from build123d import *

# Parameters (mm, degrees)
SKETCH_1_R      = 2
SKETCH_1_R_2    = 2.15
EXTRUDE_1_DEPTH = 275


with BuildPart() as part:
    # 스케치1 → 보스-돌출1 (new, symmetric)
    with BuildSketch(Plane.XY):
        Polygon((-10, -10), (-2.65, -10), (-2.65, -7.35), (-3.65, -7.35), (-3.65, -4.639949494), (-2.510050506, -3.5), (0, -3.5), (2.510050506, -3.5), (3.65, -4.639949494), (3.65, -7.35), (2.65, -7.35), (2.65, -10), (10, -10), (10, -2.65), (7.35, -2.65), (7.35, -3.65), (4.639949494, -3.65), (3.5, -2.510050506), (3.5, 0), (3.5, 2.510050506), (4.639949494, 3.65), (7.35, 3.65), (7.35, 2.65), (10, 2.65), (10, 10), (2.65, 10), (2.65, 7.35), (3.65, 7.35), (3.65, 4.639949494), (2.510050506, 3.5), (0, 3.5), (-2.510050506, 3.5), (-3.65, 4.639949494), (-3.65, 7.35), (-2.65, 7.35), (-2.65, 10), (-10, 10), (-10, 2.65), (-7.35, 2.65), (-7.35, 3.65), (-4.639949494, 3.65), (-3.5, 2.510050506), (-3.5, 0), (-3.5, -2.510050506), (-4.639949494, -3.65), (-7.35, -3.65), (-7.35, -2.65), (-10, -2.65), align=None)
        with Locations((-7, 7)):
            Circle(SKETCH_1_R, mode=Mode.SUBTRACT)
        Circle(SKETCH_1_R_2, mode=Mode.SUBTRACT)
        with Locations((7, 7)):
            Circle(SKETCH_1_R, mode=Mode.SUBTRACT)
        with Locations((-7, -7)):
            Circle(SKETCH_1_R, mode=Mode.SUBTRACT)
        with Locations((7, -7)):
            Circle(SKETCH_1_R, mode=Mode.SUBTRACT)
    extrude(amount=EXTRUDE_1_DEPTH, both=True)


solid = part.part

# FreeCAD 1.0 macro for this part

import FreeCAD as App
import Part
import Sketcher

V = App.Vector
Q = App.Units.Quantity

doc = App.newDocument("Part")
params = doc.addObject("Spreadsheet::Sheet", "Params")
for row, (alias, value) in enumerate([
    ("sketch1_diameter", "4 mm"),
    ("sketch1_diameter2", "4.3 mm"),
    ("sketch1_width", "1 mm"),
    ("sketch1_width2", "7.35 mm"),
    ("sketch1_width3", "2.65 mm"),
    ("pad1_length", "550 mm"),
], start=1):
    params.set(f"A{row}", alias)
    params.set(f"B{row}", "=" + value)
    params.setAlias(f"B{row}", alias)

body = doc.addObject("PartDesign::Body", "Body")

sketch1 = body.newObject("Sketcher::SketchObject", "Sketch")
sketch1.AttachmentSupport = (doc.getObject("XY_Plane"), [""])
sketch1.MapMode = "FlatFace"
sketch1.addGeometry([
    Part.LineSegment(V(-10, -10, 0), V(-2.65, -10, 0)),
    Part.LineSegment(V(-2.65, -10, 0), V(-2.65, -7.35, 0)),
    Part.LineSegment(V(-2.65, -7.35, 0), V(-3.65, -7.35, 0)),
    Part.LineSegment(V(-3.65, -7.35, 0), V(-3.65, -4.639949, 0)),
    Part.LineSegment(V(-3.65, -4.639949, 0), V(-2.510051, -3.5, 0)),
    Part.LineSegment(V(-2.510051, -3.5, 0), V(2.510051, -3.5, 0)),
    Part.LineSegment(V(2.510051, -3.5, 0), V(3.65, -4.639949, 0)),
    Part.LineSegment(V(3.65, -4.639949, 0), V(3.65, -7.35, 0)),
    Part.LineSegment(V(3.65, -7.35, 0), V(2.65, -7.35, 0)),
    Part.LineSegment(V(2.65, -7.35, 0), V(2.65, -10, 0)),
    Part.LineSegment(V(2.65, -10, 0), V(10, -10, 0)),
    Part.LineSegment(V(10, -10, 0), V(10, -2.65, 0)),
    Part.LineSegment(V(10, -2.65, 0), V(7.35, -2.65, 0)),
    Part.LineSegment(V(7.35, -2.65, 0), V(7.35, -3.65, 0)),
    Part.LineSegment(V(7.35, -3.65, 0), V(4.639949, -3.65, 0)),
    Part.LineSegment(V(4.639949, -3.65, 0), V(3.5, -2.510051, 0)),
    Part.LineSegment(V(3.5, -2.510051, 0), V(3.5, 2.510051, 0)),
    Part.LineSegment(V(3.5, 2.510051, 0), V(4.639949, 3.65, 0)),
    Part.LineSegment(V(4.639949, 3.65, 0), V(7.35, 3.65, 0)),
    Part.LineSegment(V(7.35, 3.65, 0), V(7.35, 2.65, 0)),
    Part.LineSegment(V(7.35, 2.65, 0), V(10, 2.65, 0)),
    Part.LineSegment(V(10, 2.65, 0), V(10, 10, 0)),
    Part.LineSegment(V(10, 10, 0), V(2.65, 10, 0)),
    Part.LineSegment(V(2.65, 10, 0), V(2.65, 7.35, 0)),
    Part.LineSegment(V(2.65, 7.35, 0), V(3.65, 7.35, 0)),
    Part.LineSegment(V(3.65, 7.35, 0), V(3.65, 4.639949, 0)),
    Part.LineSegment(V(3.65, 4.639949, 0), V(2.510051, 3.5, 0)),
    Part.LineSegment(V(2.510051, 3.5, 0), V(-2.510051, 3.5, 0)),
    Part.LineSegment(V(-2.510051, 3.5, 0), V(-3.65, 4.639949, 0)),
    Part.LineSegment(V(-3.65, 4.639949, 0), V(-3.65, 7.35, 0)),
    Part.LineSegment(V(-3.65, 7.35, 0), V(-2.65, 7.35, 0)),
    Part.LineSegment(V(-2.65, 7.35, 0), V(-2.65, 10, 0)),
    Part.LineSegment(V(-2.65, 10, 0), V(-10, 10, 0)),
    Part.LineSegment(V(-10, 10, 0), V(-10, 2.65, 0)),
    Part.LineSegment(V(-10, 2.65, 0), V(-7.35, 2.65, 0)),
    Part.LineSegment(V(-7.35, 2.65, 0), V(-7.35, 3.65, 0)),
    Part.LineSegment(V(-7.35, 3.65, 0), V(-4.639949, 3.65, 0)),
    Part.LineSegment(V(-4.639949, 3.65, 0), V(-3.5, 2.510051, 0)),
    Part.LineSegment(V(-3.5, 2.510051, 0), V(-3.5, -2.510051, 0)),
    Part.LineSegment(V(-3.5, -2.510051, 0), V(-4.639949, -3.65, 0)),
    Part.LineSegment(V(-4.639949, -3.65, 0), V(-7.35, -3.65, 0)),
    Part.LineSegment(V(-7.35, -3.65, 0), V(-7.35, -2.65, 0)),
    Part.LineSegment(V(-7.35, -2.65, 0), V(-10, -2.65, 0)),
    Part.LineSegment(V(-10, -2.65, 0), V(-10, -10, 0)),
    Part.Circle(V(-7, -7, 0), V(0, 0, 1), 2),
    Part.Circle(V(7, -7, 0), V(0, 0, 1), 2),
    Part.Circle(V(-7, 7, 0), V(0, 0, 1), 2),
    Part.Circle(V(0, 0, 0), V(0, 0, 1), 2.15),
    Part.Circle(V(7, 7, 0), V(0, 0, 1), 2),
], False)
sketch1.addConstraint([
    Sketcher.Constraint("Coincident", 0, 2, 1, 1),
    Sketcher.Constraint("Coincident", 1, 2, 2, 1),
    Sketcher.Constraint("Coincident", 2, 2, 3, 1),
    Sketcher.Constraint("Coincident", 3, 2, 4, 1),
    Sketcher.Constraint("Coincident", 4, 2, 5, 1),
    Sketcher.Constraint("Coincident", 5, 2, 6, 1),
    Sketcher.Constraint("Coincident", 6, 2, 7, 1),
    Sketcher.Constraint("Coincident", 7, 2, 8, 1),
    Sketcher.Constraint("Coincident", 8, 2, 9, 1),
    Sketcher.Constraint("Coincident", 9, 2, 10, 1),
    Sketcher.Constraint("Coincident", 10, 2, 11, 1),
    Sketcher.Constraint("Coincident", 11, 2, 12, 1),
    Sketcher.Constraint("Coincident", 12, 2, 13, 1),
    Sketcher.Constraint("Coincident", 13, 2, 14, 1),
    Sketcher.Constraint("Coincident", 14, 2, 15, 1),
    Sketcher.Constraint("Coincident", 15, 2, 16, 1),
    Sketcher.Constraint("Coincident", 16, 2, 17, 1),
    Sketcher.Constraint("Coincident", 17, 2, 18, 1),
    Sketcher.Constraint("Coincident", 18, 2, 19, 1),
    Sketcher.Constraint("Coincident", 19, 2, 20, 1),
    Sketcher.Constraint("Coincident", 20, 2, 21, 1),
    Sketcher.Constraint("Coincident", 21, 2, 22, 1),
    Sketcher.Constraint("Coincident", 22, 2, 23, 1),
    Sketcher.Constraint("Coincident", 23, 2, 24, 1),
    Sketcher.Constraint("Coincident", 24, 2, 25, 1),
    Sketcher.Constraint("Coincident", 25, 2, 26, 1),
    Sketcher.Constraint("Coincident", 26, 2, 27, 1),
    Sketcher.Constraint("Coincident", 27, 2, 28, 1),
    Sketcher.Constraint("Coincident", 28, 2, 29, 1),
    Sketcher.Constraint("Coincident", 29, 2, 30, 1),
    Sketcher.Constraint("Coincident", 30, 2, 31, 1),
    Sketcher.Constraint("Coincident", 31, 2, 32, 1),
    Sketcher.Constraint("Coincident", 32, 2, 33, 1),
    Sketcher.Constraint("Coincident", 33, 2, 34, 1),
    Sketcher.Constraint("Coincident", 34, 2, 35, 1),
    Sketcher.Constraint("Coincident", 35, 2, 36, 1),
    Sketcher.Constraint("Coincident", 36, 2, 37, 1),
    Sketcher.Constraint("Coincident", 37, 2, 38, 1),
    Sketcher.Constraint("Coincident", 38, 2, 39, 1),
    Sketcher.Constraint("Coincident", 39, 2, 40, 1),
    Sketcher.Constraint("Coincident", 40, 2, 41, 1),
    Sketcher.Constraint("Coincident", 41, 2, 42, 1),
    Sketcher.Constraint("Coincident", 42, 2, 43, 1),
    Sketcher.Constraint("Coincident", 43, 2, 0, 1),
    Sketcher.Constraint("Horizontal", 0),
    Sketcher.Constraint("Vertical", 1),
    Sketcher.Constraint("Horizontal", 2),
    Sketcher.Constraint("Vertical", 3),
    Sketcher.Constraint("Horizontal", 5),
    Sketcher.Constraint("Vertical", 7),
    Sketcher.Constraint("Horizontal", 8),
    Sketcher.Constraint("Vertical", 9),
    Sketcher.Constraint("Horizontal", 10),
    Sketcher.Constraint("Vertical", 11),
    Sketcher.Constraint("Horizontal", 12),
    Sketcher.Constraint("Vertical", 13),
    Sketcher.Constraint("Horizontal", 14),
    Sketcher.Constraint("Vertical", 16),
    Sketcher.Constraint("Horizontal", 18),
    Sketcher.Constraint("Vertical", 19),
    Sketcher.Constraint("Horizontal", 20),
    Sketcher.Constraint("Vertical", 21),
    Sketcher.Constraint("Horizontal", 22),
    Sketcher.Constraint("Vertical", 23),
    Sketcher.Constraint("Horizontal", 24),
    Sketcher.Constraint("Vertical", 25),
    Sketcher.Constraint("Horizontal", 27),
    Sketcher.Constraint("Vertical", 29),
    Sketcher.Constraint("Horizontal", 30),
    Sketcher.Constraint("Vertical", 31),
    Sketcher.Constraint("Horizontal", 32),
    Sketcher.Constraint("Vertical", 33),
    Sketcher.Constraint("Horizontal", 34),
    Sketcher.Constraint("Vertical", 35),
    Sketcher.Constraint("Horizontal", 36),
    Sketcher.Constraint("Vertical", 38),
    Sketcher.Constraint("Horizontal", 40),
    Sketcher.Constraint("Vertical", 41),
    Sketcher.Constraint("Horizontal", 42),
    Sketcher.Constraint("Vertical", 43),
    Sketcher.Constraint("Coincident", 47, 3, -1, 1),
    Sketcher.Constraint("Equal", 44, 45),
    Sketcher.Constraint("Equal", 45, 46),
    Sketcher.Constraint("Equal", 46, 48),
    Sketcher.Constraint("Symmetric", 45, 3, 46, 3, -1, 1),
    Sketcher.Constraint("Symmetric", 44, 3, 48, 3, -1, 1),
    Sketcher.Constraint("Symmetric", 0, 2, 22, 2, -1, 1),
    Sketcher.Constraint("Symmetric", 2, 2, 24, 2, -1, 1),
    Sketcher.Constraint("Symmetric", 4, 2, 26, 2, -1, 1),
    Sketcher.Constraint("Symmetric", 6, 2, 28, 2, -1, 1),
    Sketcher.Constraint("Symmetric", 8, 2, 30, 2, -1, 1),
    Sketcher.Constraint("Symmetric", 10, 2, 32, 2, -1, 1),
    Sketcher.Constraint("Symmetric", 12, 2, 34, 2, -1, 1),
    Sketcher.Constraint("Symmetric", 14, 2, 36, 2, -1, 1),
    Sketcher.Constraint("Symmetric", 15, 2, 37, 2, -1, 1),
    Sketcher.Constraint("Symmetric", 17, 2, 39, 2, -1, 1),
    Sketcher.Constraint("Symmetric", 19, 2, 41, 2, -1, 1),
    Sketcher.Constraint("Symmetric", 44, 3, 45, 3, -2),
    Sketcher.Constraint("Symmetric", 3, 2, 6, 2, -2),
    Sketcher.Constraint("Symmetric", 1, 2, 8, 2, -2),
    Sketcher.Constraint("Symmetric", 21, 2, 32, 2, -2),
    Sketcher.Constraint("Symmetric", 19, 2, 34, 2, -2),
    Sketcher.Constraint("Symmetric", 17, 2, 36, 2, -2),
    Sketcher.Constraint("Perpendicular", 4, 6),
    Sketcher.Constraint("Parallel", 6, 15),
    Sketcher.Constraint("Perpendicular", 15, 17),
    Sketcher.Constraint("Parallel", 17, 26),
    Sketcher.Constraint("Perpendicular", 26, 28),
    Sketcher.Constraint("Perpendicular", 37, 39),
    Sketcher.Constraint("Horizontal", 16, 2, 37, 2),
    Sketcher.Constraint("Vertical", 33, 2, 42, 2),
    Sketcher.Constraint("Equal", 42, 1),
    Sketcher.Constraint("Equal", 40, 3),
    Sketcher.Constraint("Equal", 32, 11),
    Sketcher.Constraint("Equal", 30, 13),
    Sketcher.Constraint("Equal", 27, 16),
    Sketcher.Constraint("Equal", 6, 15),
    Sketcher.Constraint("Diameter", 44, Q("4 mm")),
    Sketcher.Constraint("Diameter", 47, Q("4.3 mm")),
    Sketcher.Constraint("DistanceX", 2, 2, 2, 1, Q("1 mm")),
    Sketcher.Constraint("DistanceX", 44, 3, -1, 1, Q("7 mm")),
    Sketcher.Constraint("DistanceY", 44, 3, -1, 1, Q("7 mm")),
    Sketcher.Constraint("DistanceY", 0, 2, -1, 1, Q("10 mm")),
    Sketcher.Constraint("DistanceX", 0, 1, 0, 2, Q("7.35 mm")),
    Sketcher.Constraint("DistanceX", 12, 2, 12, 1, Q("2.65 mm")),
    Sketcher.Constraint("DistanceY", 4, 2, -1, 1, Q("3.5 mm")),
    Sketcher.Constraint("DistanceX", 5, 1, 5, 2, Q("5.020101 mm")),
])
sketch1.setExpression("Constraints[117]", "Params.sketch1_diameter")
sketch1.setExpression("Constraints[118]", "Params.sketch1_diameter2")
sketch1.setExpression("Constraints[119]", "Params.sketch1_width")
sketch1.setExpression("Constraints[123]", "Params.sketch1_width2")
sketch1.setExpression("Constraints[124]", "Params.sketch1_width3")
pad1 = body.newObject("PartDesign::Pad", "Pad")
pad1.Profile = sketch1
pad1.setExpression("Length", "Params.pad1_length")
pad1.Midplane = True

doc.recompute()
